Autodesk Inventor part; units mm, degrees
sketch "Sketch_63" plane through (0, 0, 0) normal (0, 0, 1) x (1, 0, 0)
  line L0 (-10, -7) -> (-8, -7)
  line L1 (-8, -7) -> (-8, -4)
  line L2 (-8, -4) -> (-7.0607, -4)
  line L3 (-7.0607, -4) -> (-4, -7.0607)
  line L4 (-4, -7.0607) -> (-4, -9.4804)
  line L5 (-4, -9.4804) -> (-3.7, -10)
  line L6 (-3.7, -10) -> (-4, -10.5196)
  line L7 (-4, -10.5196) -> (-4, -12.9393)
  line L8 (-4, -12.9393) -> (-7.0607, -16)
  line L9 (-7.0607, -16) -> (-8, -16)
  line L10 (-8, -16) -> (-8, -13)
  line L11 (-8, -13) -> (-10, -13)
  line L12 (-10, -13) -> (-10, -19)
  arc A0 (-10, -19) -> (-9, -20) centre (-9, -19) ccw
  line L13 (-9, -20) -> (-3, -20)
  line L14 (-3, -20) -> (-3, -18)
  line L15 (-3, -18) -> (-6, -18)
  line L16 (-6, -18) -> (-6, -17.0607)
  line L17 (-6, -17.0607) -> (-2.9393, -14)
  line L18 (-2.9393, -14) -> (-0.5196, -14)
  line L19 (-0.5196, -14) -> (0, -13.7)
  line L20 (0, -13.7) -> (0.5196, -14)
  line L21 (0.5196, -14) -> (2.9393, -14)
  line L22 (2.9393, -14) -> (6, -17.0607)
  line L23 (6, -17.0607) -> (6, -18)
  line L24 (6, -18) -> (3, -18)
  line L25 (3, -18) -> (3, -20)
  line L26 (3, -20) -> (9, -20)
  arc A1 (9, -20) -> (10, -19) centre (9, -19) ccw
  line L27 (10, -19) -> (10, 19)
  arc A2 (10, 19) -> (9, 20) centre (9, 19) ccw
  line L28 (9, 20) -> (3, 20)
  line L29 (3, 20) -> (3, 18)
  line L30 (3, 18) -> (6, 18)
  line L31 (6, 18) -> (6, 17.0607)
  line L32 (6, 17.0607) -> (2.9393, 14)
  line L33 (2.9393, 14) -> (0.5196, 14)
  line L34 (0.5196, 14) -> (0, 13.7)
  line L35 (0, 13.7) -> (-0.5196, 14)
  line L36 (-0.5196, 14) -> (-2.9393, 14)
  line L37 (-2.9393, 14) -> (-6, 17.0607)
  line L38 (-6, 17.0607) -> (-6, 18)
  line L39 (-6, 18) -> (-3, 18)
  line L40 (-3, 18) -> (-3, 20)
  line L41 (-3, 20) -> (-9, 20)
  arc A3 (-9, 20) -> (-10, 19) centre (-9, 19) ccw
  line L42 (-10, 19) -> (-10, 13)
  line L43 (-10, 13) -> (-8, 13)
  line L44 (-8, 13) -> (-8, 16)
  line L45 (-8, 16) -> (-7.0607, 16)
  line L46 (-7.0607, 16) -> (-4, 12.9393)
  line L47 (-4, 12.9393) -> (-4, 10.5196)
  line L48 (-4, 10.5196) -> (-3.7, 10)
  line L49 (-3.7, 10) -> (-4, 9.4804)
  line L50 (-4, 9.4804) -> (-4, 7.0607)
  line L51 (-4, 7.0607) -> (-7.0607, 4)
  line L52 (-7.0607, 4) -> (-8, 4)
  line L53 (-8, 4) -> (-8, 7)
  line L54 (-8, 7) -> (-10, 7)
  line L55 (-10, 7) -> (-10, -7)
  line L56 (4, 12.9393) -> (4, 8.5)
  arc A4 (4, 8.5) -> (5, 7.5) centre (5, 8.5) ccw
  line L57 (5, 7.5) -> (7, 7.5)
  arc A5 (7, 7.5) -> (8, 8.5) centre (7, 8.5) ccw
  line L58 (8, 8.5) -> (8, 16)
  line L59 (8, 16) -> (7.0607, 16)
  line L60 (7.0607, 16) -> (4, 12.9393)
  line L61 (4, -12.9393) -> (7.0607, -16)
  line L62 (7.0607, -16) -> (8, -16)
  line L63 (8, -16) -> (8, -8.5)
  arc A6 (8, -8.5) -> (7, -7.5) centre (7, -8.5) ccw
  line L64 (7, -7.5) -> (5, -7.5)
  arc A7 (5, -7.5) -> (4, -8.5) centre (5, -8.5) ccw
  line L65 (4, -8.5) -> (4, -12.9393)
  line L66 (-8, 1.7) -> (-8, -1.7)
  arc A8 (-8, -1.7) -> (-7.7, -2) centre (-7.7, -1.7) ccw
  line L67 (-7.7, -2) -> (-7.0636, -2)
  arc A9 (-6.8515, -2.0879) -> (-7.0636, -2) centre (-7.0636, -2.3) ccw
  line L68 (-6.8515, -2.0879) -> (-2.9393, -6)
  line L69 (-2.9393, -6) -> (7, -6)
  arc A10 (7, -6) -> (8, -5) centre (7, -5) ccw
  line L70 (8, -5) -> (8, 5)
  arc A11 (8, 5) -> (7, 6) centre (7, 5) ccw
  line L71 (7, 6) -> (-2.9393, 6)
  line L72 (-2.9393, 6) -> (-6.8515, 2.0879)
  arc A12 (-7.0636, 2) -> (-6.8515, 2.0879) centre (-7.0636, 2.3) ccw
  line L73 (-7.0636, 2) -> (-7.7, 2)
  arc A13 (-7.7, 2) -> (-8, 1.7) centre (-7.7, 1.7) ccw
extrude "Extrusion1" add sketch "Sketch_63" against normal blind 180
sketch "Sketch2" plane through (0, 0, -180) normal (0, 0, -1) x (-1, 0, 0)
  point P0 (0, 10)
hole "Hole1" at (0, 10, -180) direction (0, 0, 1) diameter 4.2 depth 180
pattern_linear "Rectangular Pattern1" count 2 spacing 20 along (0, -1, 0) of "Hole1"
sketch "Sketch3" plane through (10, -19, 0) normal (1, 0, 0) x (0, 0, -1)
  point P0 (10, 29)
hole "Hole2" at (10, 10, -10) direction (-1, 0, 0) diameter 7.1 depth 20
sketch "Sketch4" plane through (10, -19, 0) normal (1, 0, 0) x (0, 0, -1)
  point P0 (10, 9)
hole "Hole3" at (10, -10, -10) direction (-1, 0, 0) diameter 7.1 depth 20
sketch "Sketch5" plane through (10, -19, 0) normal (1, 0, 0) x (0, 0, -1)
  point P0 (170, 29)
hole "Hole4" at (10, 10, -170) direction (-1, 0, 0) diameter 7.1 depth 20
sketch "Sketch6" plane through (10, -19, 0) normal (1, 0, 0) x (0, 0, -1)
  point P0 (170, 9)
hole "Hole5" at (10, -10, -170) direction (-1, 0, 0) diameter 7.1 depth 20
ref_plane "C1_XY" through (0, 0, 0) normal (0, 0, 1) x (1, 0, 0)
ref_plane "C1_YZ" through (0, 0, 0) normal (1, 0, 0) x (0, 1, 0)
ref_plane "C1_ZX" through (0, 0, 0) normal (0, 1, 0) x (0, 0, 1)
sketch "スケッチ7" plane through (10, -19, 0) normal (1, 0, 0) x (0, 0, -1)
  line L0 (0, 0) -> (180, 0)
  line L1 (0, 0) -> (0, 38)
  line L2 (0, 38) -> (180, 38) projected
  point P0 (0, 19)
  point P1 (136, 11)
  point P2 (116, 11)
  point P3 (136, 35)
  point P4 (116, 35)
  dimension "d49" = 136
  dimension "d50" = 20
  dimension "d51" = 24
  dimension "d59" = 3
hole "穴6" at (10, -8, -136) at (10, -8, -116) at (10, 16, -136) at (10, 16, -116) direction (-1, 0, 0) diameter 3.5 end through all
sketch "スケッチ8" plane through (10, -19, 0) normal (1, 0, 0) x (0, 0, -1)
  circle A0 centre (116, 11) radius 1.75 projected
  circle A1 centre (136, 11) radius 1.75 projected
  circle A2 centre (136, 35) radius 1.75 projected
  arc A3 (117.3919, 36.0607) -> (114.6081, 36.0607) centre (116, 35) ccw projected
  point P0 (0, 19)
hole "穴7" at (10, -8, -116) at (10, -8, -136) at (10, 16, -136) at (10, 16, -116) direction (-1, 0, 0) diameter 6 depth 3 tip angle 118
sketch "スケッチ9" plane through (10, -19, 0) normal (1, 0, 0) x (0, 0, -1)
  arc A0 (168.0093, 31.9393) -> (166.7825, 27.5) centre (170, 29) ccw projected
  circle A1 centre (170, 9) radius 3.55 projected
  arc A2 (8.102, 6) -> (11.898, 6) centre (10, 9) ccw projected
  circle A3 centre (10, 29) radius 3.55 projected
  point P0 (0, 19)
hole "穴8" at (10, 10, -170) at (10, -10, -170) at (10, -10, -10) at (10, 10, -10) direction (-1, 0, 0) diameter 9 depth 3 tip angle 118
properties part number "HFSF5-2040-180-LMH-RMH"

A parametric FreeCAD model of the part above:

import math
import FreeCAD as App
import Part
import Sketcher

V = App.Vector
Q = App.Units.Quantity

doc = App.newDocument("Part")
body = doc.addObject("PartDesign::Body", "Body")

# Sketch on XY plane
sketch1 = body.newObject("Sketcher::SketchObject", "Sketch")
sketch1.AttachmentSupport = (doc.getObject("XY_Plane"), [""])
sketch1.MapMode = "FlatFace"
sketch1.addGeometry([
    Part.LineSegment(V(-10, 7, 0), V(-10, -7, 0)),  # 0
    Part.LineSegment(V(-10, -7, 0), V(-8, -7, 0)),  # 1
    Part.LineSegment(V(-8, -7, 0), V(-8, -4, 0)),  # 2
    Part.LineSegment(V(-8, -4, 0), V(-7.06, -4, 0)),  # 3
    Part.LineSegment(V(-7.06, -4, 0), V(-4, -7.06, 0)),  # 4
    Part.LineSegment(V(-4, -7.06, 0), V(-4, -9.48, 0)),  # 5
    Part.LineSegment(V(-4, -9.48, 0), V(-3.7, -10, 0)),  # 6
    Part.LineSegment(V(-3.7, -10, 0), V(-4, -10.52, 0)),  # 7
    Part.LineSegment(V(-4, -10.52, 0), V(-4, -12.94, 0)),  # 8
    Part.LineSegment(V(-4, -12.94, 0), V(-7.06, -16, 0)),  # 9
    Part.LineSegment(V(-7.06, -16, 0), V(-8, -16, 0)),  # 10
    Part.LineSegment(V(-8, -16, 0), V(-8, -13, 0)),  # 11
    Part.LineSegment(V(-8, -13, 0), V(-10, -13, 0)),  # 12
    Part.LineSegment(V(-10, -13, 0), V(-10, -19, 0)),  # 13
    Part.ArcOfCircle(Part.Circle(V(-9, -19, 0), V(0, 0, 1), 1), math.radians(180), math.radians(270)),  # 14
    Part.LineSegment(V(-9, -20, 0), V(-3, -20, 0)),  # 15
    Part.LineSegment(V(-3, -20, 0), V(-3, -18, 0)),  # 16
    Part.LineSegment(V(-3, -18, 0), V(-6, -18, 0)),  # 17
    Part.LineSegment(V(-6, -18, 0), V(-6, -17.06, 0)),  # 18
    Part.LineSegment(V(-6, -17.06, 0), V(-2.94, -14, 0)),  # 19
    Part.LineSegment(V(-2.94, -14, 0), V(-0.52, -14, 0)),  # 20
    Part.LineSegment(V(-0.52, -14, 0), V(0, -13.7, 0)),  # 21
    Part.LineSegment(V(0, -13.7, 0), V(0.52, -14, 0)),  # 22
    Part.LineSegment(V(0.52, -14, 0), V(2.94, -14, 0)),  # 23
    Part.LineSegment(V(2.94, -14, 0), V(6, -17.06, 0)),  # 24
    Part.LineSegment(V(6, -17.06, 0), V(6, -18, 0)),  # 25
    Part.LineSegment(V(6, -18, 0), V(3, -18, 0)),  # 26
    Part.LineSegment(V(3, -18, 0), V(3, -20, 0)),  # 27
    Part.LineSegment(V(3, -20, 0), V(9, -20, 0)),  # 28
    Part.ArcOfCircle(Part.Circle(V(9, -19, 0), V(0, 0, 1), 1), math.radians(-90), math.radians(0)),  # 29
    Part.LineSegment(V(10, -19, 0), V(10, 19, 0)),  # 30
    Part.ArcOfCircle(Part.Circle(V(9, 19, 0), V(0, 0, 1), 1), math.radians(0), math.radians(90)),  # 31
    Part.LineSegment(V(9, 20, 0), V(3, 20, 0)),  # 32
    Part.LineSegment(V(3, 20, 0), V(3, 18, 0)),  # 33
    Part.LineSegment(V(3, 18, 0), V(6, 18, 0)),  # 34
    Part.LineSegment(V(6, 18, 0), V(6, 17.06, 0)),  # 35
    Part.LineSegment(V(6, 17.06, 0), V(2.94, 14, 0)),  # 36
    Part.LineSegment(V(2.94, 14, 0), V(0.52, 14, 0)),  # 37
    Part.LineSegment(V(0.52, 14, 0), V(0, 13.7, 0)),  # 38
    Part.LineSegment(V(0, 13.7, 0), V(-0.52, 14, 0)),  # 39
    Part.LineSegment(V(-0.52, 14, 0), V(-2.94, 14, 0)),  # 40
    Part.LineSegment(V(-2.94, 14, 0), V(-6, 17.06, 0)),  # 41
    Part.LineSegment(V(-6, 17.06, 0), V(-6, 18, 0)),  # 42
    Part.LineSegment(V(-6, 18, 0), V(-3, 18, 0)),  # 43
    Part.LineSegment(V(-3, 18, 0), V(-3, 20, 0)),  # 44
    Part.LineSegment(V(-3, 20, 0), V(-9, 20, 0)),  # 45
    Part.ArcOfCircle(Part.Circle(V(-9, 19, 0), V(0, 0, 1), 1), math.radians(90), math.radians(180)),  # 46
    Part.LineSegment(V(-10, 19, 0), V(-10, 13, 0)),  # 47
    Part.LineSegment(V(-10, 13, 0), V(-8, 13, 0)),  # 48
    Part.LineSegment(V(-8, 13, 0), V(-8, 16, 0)),  # 49
    Part.LineSegment(V(-8, 16, 0), V(-7.06, 16, 0)),  # 50
    Part.LineSegment(V(-7.06, 16, 0), V(-4, 12.94, 0)),  # 51
    Part.LineSegment(V(-4, 12.94, 0), V(-4, 10.52, 0)),  # 52
    Part.LineSegment(V(-4, 10.52, 0), V(-3.7, 10, 0)),  # 53
    Part.LineSegment(V(-3.7, 10, 0), V(-4, 9.48, 0)),  # 54
    Part.LineSegment(V(-4, 9.48, 0), V(-4, 7.06, 0)),  # 55
    Part.LineSegment(V(-4, 7.06, 0), V(-7.06, 4, 0)),  # 56
    Part.LineSegment(V(-7.06, 4, 0), V(-8, 4, 0)),  # 57
    Part.LineSegment(V(-8, 4, 0), V(-8, 7, 0)),  # 58
    Part.LineSegment(V(-8, 7, 0), V(-10, 7, 0)),  # 59
    Part.LineSegment(V(7.06, -16, 0), V(4, -12.94, 0)),  # 60
    Part.LineSegment(V(4, -12.94, 0), V(4, -8.5, 0)),  # 61
    Part.ArcOfCircle(Part.Circle(V(5, -8.5, 0), V(0, 0, 1), 1), math.radians(90), math.radians(180)),  # 62
    Part.LineSegment(V(5, -7.5, 0), V(7, -7.5, 0)),  # 63
    Part.ArcOfCircle(Part.Circle(V(7, -8.5, 0), V(0, 0, 1), 1), math.radians(0), math.radians(90)),  # 64
    Part.LineSegment(V(8, -8.5, 0), V(8, -16, 0)),  # 65
    Part.LineSegment(V(8, -16, 0), V(7.06, -16, 0)),  # 66
    Part.LineSegment(V(-8, -1.7, 0), V(-8, 1.7, 0)),  # 67
    Part.ArcOfCircle(Part.Circle(V(-7.7, 1.7, 0), V(0, 0, 1), 0.3), math.radians(90), math.radians(180)),  # 68
    Part.LineSegment(V(-7.7, 2, 0), V(-7.06, 2, 0)),  # 69
    Part.ArcOfCircle(Part.Circle(V(-7.06, 2.3, 0), V(0, 0, 1), 0.3), math.radians(-90), math.radians(-45)),  # 70
    Part.LineSegment(V(-6.85, 2.09, 0), V(-2.94, 6, 0)),  # 71
    Part.LineSegment(V(-2.94, 6, 0), V(7, 6, 0)),  # 72
    Part.ArcOfCircle(Part.Circle(V(7, 5, 0), V(0, 0, 1), 1), math.radians(0), math.radians(90)),  # 73
    Part.LineSegment(V(8, 5, 0), V(8, -5, 0)),  # 74
    Part.ArcOfCircle(Part.Circle(V(7, -5, 0), V(0, 0, 1), 1), math.radians(-90), math.radians(0)),  # 75
    Part.LineSegment(V(7, -6, 0), V(-2.94, -6, 0)),  # 76
    Part.LineSegment(V(-2.94, -6, 0), V(-6.85, -2.09, 0)),  # 77
    Part.ArcOfCircle(Part.Circle(V(-7.06, -2.3, 0), V(0, 0, 1), 0.3), math.radians(45), math.radians(90)),  # 78
    Part.LineSegment(V(-7.06, -2, 0), V(-7.7, -2, 0)),  # 79
    Part.ArcOfCircle(Part.Circle(V(-7.7, -1.7, 0), V(0, 0, 1), 0.3), math.radians(180), math.radians(270)),  # 80
    Part.LineSegment(V(4, 8.5, 0), V(4, 12.94, 0)),  # 81
    Part.LineSegment(V(4, 12.94, 0), V(7.06, 16, 0)),  # 82
    Part.LineSegment(V(7.06, 16, 0), V(8, 16, 0)),  # 83
    Part.LineSegment(V(8, 16, 0), V(8, 8.5, 0)),  # 84
    Part.ArcOfCircle(Part.Circle(V(7, 8.5, 0), V(0, 0, 1), 1), math.radians(-90), math.radians(0)),  # 85
    Part.LineSegment(V(7, 7.5, 0), V(5, 7.5, 0)),  # 86
    Part.ArcOfCircle(Part.Circle(V(5, 8.5, 0), V(0, 0, 1), 1), math.radians(180), math.radians(270)),  # 87
], False)
sketch1.addConstraint([
    Sketcher.Constraint("Coincident", 0, 2, 1, 1),
    Sketcher.Constraint("Coincident", 1, 2, 2, 1),
    Sketcher.Constraint("Coincident", 2, 2, 3, 1),
    Sketcher.Constraint("Coincident", 3, 2, 4, 1),
    Sketcher.Constraint("Coincident", 4, 2, 5, 1),
    Sketcher.Constraint("Coincident", 5, 2, 6, 1),
    Sketcher.Constraint("Coincident", 6, 2, 7, 1),
    Sketcher.Constraint("Coincident", 7, 2, 8, 1),
    Sketcher.Constraint("Coincident", 8, 2, 9, 1),
    Sketcher.Constraint("Coincident", 9, 2, 10, 1),
    Sketcher.Constraint("Coincident", 10, 2, 11, 1),
    Sketcher.Constraint("Coincident", 11, 2, 12, 1),
    Sketcher.Constraint("Coincident", 12, 2, 13, 1),
    Sketcher.Constraint("Tangent", 13, 2, 14, 1),
    Sketcher.Constraint("Tangent", 14, 2, 15, 1),
    Sketcher.Constraint("Coincident", 15, 2, 16, 1),
    Sketcher.Constraint("Coincident", 16, 2, 17, 1),
    Sketcher.Constraint("Coincident", 17, 2, 18, 1),
    Sketcher.Constraint("Coincident", 18, 2, 19, 1),
    Sketcher.Constraint("Coincident", 19, 2, 20, 1),
    Sketcher.Constraint("Coincident", 20, 2, 21, 1),
    Sketcher.Constraint("Coincident", 21, 2, 22, 1),
    Sketcher.Constraint("Coincident", 22, 2, 23, 1),
    Sketcher.Constraint("Coincident", 23, 2, 24, 1),
    Sketcher.Constraint("Coincident", 24, 2, 25, 1),
    Sketcher.Constraint("Coincident", 25, 2, 26, 1),
    Sketcher.Constraint("Coincident", 26, 2, 27, 1),
    Sketcher.Constraint("Coincident", 27, 2, 28, 1),
    Sketcher.Constraint("Tangent", 28, 2, 29, 1),
    Sketcher.Constraint("Tangent", 29, 2, 30, 1),
    Sketcher.Constraint("Tangent", 30, 2, 31, 1),
    Sketcher.Constraint("Tangent", 31, 2, 32, 1),
    Sketcher.Constraint("Coincident", 32, 2, 33, 1),
    Sketcher.Constraint("Coincident", 33, 2, 34, 1),
    Sketcher.Constraint("Coincident", 34, 2, 35, 1),
    Sketcher.Constraint("Coincident", 35, 2, 36, 1),
    Sketcher.Constraint("Coincident", 36, 2, 37, 1),
    Sketcher.Constraint("Coincident", 37, 2, 38, 1),
    Sketcher.Constraint("Coincident", 38, 2, 39, 1),
    Sketcher.Constraint("Coincident", 39, 2, 40, 1),
    Sketcher.Constraint("Coincident", 40, 2, 41, 1),
    Sketcher.Constraint("Coincident", 41, 2, 42, 1),
    Sketcher.Constraint("Coincident", 42, 2, 43, 1),
    Sketcher.Constraint("Coincident", 43, 2, 44, 1),
    Sketcher.Constraint("Coincident", 44, 2, 45, 1),
    Sketcher.Constraint("Tangent", 45, 2, 46, 1),
    Sketcher.Constraint("Tangent", 46, 2, 47, 1),
    Sketcher.Constraint("Coincident", 47, 2, 48, 1),
    Sketcher.Constraint("Coincident", 48, 2, 49, 1),
    Sketcher.Constraint("Coincident", 49, 2, 50, 1),
    Sketcher.Constraint("Coincident", 50, 2, 51, 1),
    Sketcher.Constraint("Coincident", 51, 2, 52, 1),
    Sketcher.Constraint("Coincident", 52, 2, 53, 1),
    Sketcher.Constraint("Coincident", 53, 2, 54, 1),
    Sketcher.Constraint("Coincident", 54, 2, 55, 1),
    Sketcher.Constraint("Coincident", 55, 2, 56, 1),
    Sketcher.Constraint("Coincident", 56, 2, 57, 1),
    Sketcher.Constraint("Coincident", 57, 2, 58, 1),
    Sketcher.Constraint("Coincident", 58, 2, 59, 1),
    Sketcher.Constraint("Coincident", 59, 2, 0, 1),
    Sketcher.Constraint("Coincident", 60, 2, 61, 1),
    Sketcher.Constraint("Tangent", 61, 2, 62, 2),
    Sketcher.Constraint("Tangent", 62, 1, 63, 1),
    Sketcher.Constraint("Tangent", 63, 2, 64, 2),
    Sketcher.Constraint("Tangent", 64, 1, 65, 1),
    Sketcher.Constraint("Coincident", 65, 2, 66, 1),
    Sketcher.Constraint("Coincident", 66, 2, 60, 1),
    Sketcher.Constraint("Tangent", 67, 2, 68, 2),
    Sketcher.Constraint("Tangent", 68, 1, 69, 1),
    Sketcher.Constraint("Tangent", 69, 2, 70, 1),
    Sketcher.Constraint("Tangent", 70, 2, 71, 1),
    Sketcher.Constraint("Coincident", 71, 2, 72, 1),
    Sketcher.Constraint("Tangent", 72, 2, 73, 2),
    Sketcher.Constraint("Tangent", 73, 1, 74, 1),
    Sketcher.Constraint("Tangent", 74, 2, 75, 2),
    Sketcher.Constraint("Tangent", 75, 1, 76, 1),
    Sketcher.Constraint("Coincident", 76, 2, 77, 1),
    Sketcher.Constraint("Tangent", 77, 2, 78, 1),
    Sketcher.Constraint("Tangent", 78, 2, 79, 1),
    Sketcher.Constraint("Tangent", 79, 2, 80, 2),
    Sketcher.Constraint("Tangent", 80, 1, 67, 1),
    Sketcher.Constraint("Coincident", 81, 2, 82, 1),
    Sketcher.Constraint("Coincident", 82, 2, 83, 1),
    Sketcher.Constraint("Coincident", 83, 2, 84, 1),
    Sketcher.Constraint("Tangent", 84, 2, 85, 2),
    Sketcher.Constraint("Tangent", 85, 1, 86, 1),
    Sketcher.Constraint("Tangent", 86, 2, 87, 2),
    Sketcher.Constraint("Tangent", 87, 1, 81, 1),
    Sketcher.Constraint("Vertical", 0),
    Sketcher.Constraint("Horizontal", 1),
    Sketcher.Constraint("Vertical", 2),
    Sketcher.Constraint("Horizontal", 3),
    Sketcher.Constraint("Vertical", 5),
    Sketcher.Constraint("Vertical", 8),
    Sketcher.Constraint("Horizontal", 10),
    Sketcher.Constraint("Vertical", 11),
    Sketcher.Constraint("Horizontal", 12),
    Sketcher.Constraint("Vertical", 13),
    Sketcher.Constraint("Horizontal", 15),
    Sketcher.Constraint("Vertical", 16),
    Sketcher.Constraint("Horizontal", 17),
    Sketcher.Constraint("Vertical", 18),
    Sketcher.Constraint("Horizontal", 20),
    Sketcher.Constraint("Horizontal", 23),
    Sketcher.Constraint("Vertical", 25),
    Sketcher.Constraint("Horizontal", 26),
    Sketcher.Constraint("Vertical", 27),
    Sketcher.Constraint("Horizontal", 28),
    Sketcher.Constraint("Vertical", 30),
    Sketcher.Constraint("Horizontal", 32),
    Sketcher.Constraint("Vertical", 33),
    Sketcher.Constraint("Horizontal", 34),
    Sketcher.Constraint("Vertical", 35),
    Sketcher.Constraint("Horizontal", 37),
    Sketcher.Constraint("Horizontal", 40),
    Sketcher.Constraint("Vertical", 42),
    Sketcher.Constraint("Horizontal", 43),
    Sketcher.Constraint("Vertical", 44),
    Sketcher.Constraint("Horizontal", 45),
    Sketcher.Constraint("Vertical", 47),
    Sketcher.Constraint("Horizontal", 48),
    Sketcher.Constraint("Vertical", 49),
    Sketcher.Constraint("Horizontal", 50),
    Sketcher.Constraint("Vertical", 52),
    Sketcher.Constraint("Vertical", 55),
    Sketcher.Constraint("Horizontal", 57),
    Sketcher.Constraint("Vertical", 58),
    Sketcher.Constraint("Horizontal", 59),
    Sketcher.Constraint("Vertical", 61),
    Sketcher.Constraint("Horizontal", 63),
    Sketcher.Constraint("Vertical", 65),
    Sketcher.Constraint("Horizontal", 66),
    Sketcher.Constraint("Vertical", 67),
    Sketcher.Constraint("Horizontal", 69),
    Sketcher.Constraint("Horizontal", 72),
    Sketcher.Constraint("Vertical", 74),
    Sketcher.Constraint("Horizontal", 76),
    Sketcher.Constraint("Horizontal", 79),
    Sketcher.Constraint("Vertical", 81),
    Sketcher.Constraint("Horizontal", 83),
    Sketcher.Constraint("Vertical", 84),
    Sketcher.Constraint("Horizontal", 86),
    Sketcher.Constraint("Equal", 14, 29),
    Sketcher.Constraint("Equal", 29, 31),
    Sketcher.Constraint("Equal", 31, 46),
    Sketcher.Constraint("Equal", 46, 62),
    Sketcher.Constraint("Equal", 62, 64),
    Sketcher.Constraint("Equal", 68, 70),
    Sketcher.Constraint("Equal", 64, 73),
    Sketcher.Constraint("Equal", 73, 75),
    Sketcher.Constraint("Equal", 70, 78),
    Sketcher.Constraint("Equal", 78, 80),
    Sketcher.Constraint("Equal", 75, 85),
    Sketcher.Constraint("Equal", 85, 87),
    Sketcher.Constraint("Symmetric", 14, 3, 31, 3, -1, 1),
    Sketcher.Constraint("Symmetric", 29, 3, 46, 3, -1, 1),
    Sketcher.Constraint("Symmetric", 16, 2, 33, 2, -1, 1),
    Sketcher.Constraint("Symmetric", 18, 2, 35, 2, -1, 1),
    Sketcher.Constraint("Symmetric", 19, 2, 36, 2, -1, 1),
    Sketcher.Constraint("Symmetric", 21, 2, 38, 2, -1, 1),
    Sketcher.Constraint("Symmetric", 22, 2, 39, 2, -1, 1),
    Sketcher.Constraint("Symmetric", 24, 2, 41, 2, -1, 1),
    Sketcher.Constraint("Symmetric", 26, 2, 43, 2, -1, 1),
    Sketcher.Constraint("Symmetric", 51, 2, 60, 2, -1, 1),
    Sketcher.Constraint("Symmetric", 49, 2, 65, 2, -1, 1),
    Sketcher.Constraint("Symmetric", 8, 2, 81, 2, -1, 1),
    Sketcher.Constraint("Symmetric", 9, 2, 82, 2, -1, 1),
    Sketcher.Constraint("Symmetric", 20, 2, 22, 2, -2),
    Sketcher.Constraint("Symmetric", 18, 2, 24, 2, -2),
    Sketcher.Constraint("Symmetric", 16, 2, 26, 2, -2),
    Sketcher.Constraint("Symmetric", 8, 2, 60, 2, -2),
    Sketcher.Constraint("Symmetric", 10, 2, 65, 2, -2),
    Sketcher.Constraint("Symmetric", 70, 3, 78, 3, -1),
    Sketcher.Constraint("Symmetric", 64, 3, 85, 3, -1),
    Sketcher.Constraint("Symmetric", 6, 2, 53, 2, -1),
    Sketcher.Constraint("Symmetric", 5, 2, 54, 2, -1),
    Sketcher.Constraint("Symmetric", 3, 2, 56, 2, -1),
    Sketcher.Constraint("Symmetric", 1, 2, 58, 2, -1),
    Sketcher.Constraint("Symmetric", 71, 2, 76, 2, -1),
    Sketcher.Constraint("PointOnObject", 21, 2, -2),
    Sketcher.Constraint("Perpendicular", 4, 9),
    Sketcher.Constraint("Parallel", 9, 19),
    Sketcher.Constraint("Perpendicular", 6, 21),
    Sketcher.Constraint("Perpendicular", 7, 22),
    Sketcher.Constraint("Perpendicular", 19, 24),
    Sketcher.Constraint("Parallel", 21, 38),
    Sketcher.Constraint("Perpendicular", 36, 41),
    Sketcher.Constraint("Parallel", 41, 51),
    Sketcher.Constraint("Perpendicular", 38, 53),
    Sketcher.Constraint("Perpendicular", 51, 56),
    Sketcher.Constraint("Perpendicular", 56, 60),
    Sketcher.Constraint("Perpendicular", 60, 71),
    Sketcher.Constraint("Perpendicular", 71, 77),
    Sketcher.Constraint("Horizontal", 14, 3, 29, 3),
    Sketcher.Constraint("Vertical", 64, 3, 73, 3),
    Sketcher.Constraint("Vertical", 5, 2, 7, 2),
    Sketcher.Constraint("Vertical", 3, 2, 9, 2),
    Sketcher.Constraint("Vertical", 2, 2, 10, 2),
    Sketcher.Constraint("Vertical", 0, 2, 12, 2),
    Sketcher.Constraint("Vertical", 58, 2, 67, 2),
    Sketcher.Constraint("Vertical", 40, 2, 71, 2),
    Sketcher.Constraint("Equal", 59, 63),
    Sketcher.Constraint("Equal", 43, 2),
    Sketcher.Constraint("Equal", 40, 5),
    Sketcher.Constraint("Equal", 5, 8),
    Sketcher.Constraint("Equal", 2, 11),
    Sketcher.Constraint("Equal", 45, 13),
    Sketcher.Constraint("Equal", 86, 16),
    Sketcher.Constraint("Equal", 83, 18),
    Sketcher.Constraint("Equal", 13, 47),
    Sketcher.Constraint("Equal", 9, 19),
    Sketcher.Constraint("Equal", 7, 21),
    Sketcher.Constraint("Radius", 14, 1.0),
    Sketcher.Constraint("Radius", 68, 0.3),
    Sketcher.Constraint("DistanceX", 1, 1, 1, 2, 2.0),
    Sketcher.Constraint("DistanceX", 15, 1, 15, 2, 6.0),
    Sketcher.Constraint("DistanceX", 17, 2, 17, 1, 3.0),
    Sketcher.Constraint("DistanceY", 0, 2, 0, 1, 14.0),
    Sketcher.Constraint("DistanceY", 30, 1, 30, 2, 38.0),
    Sketcher.Constraint("DistanceY", 74, 2, 74, 1, 10.0),
    Sketcher.Constraint("Angle", 6, Q("-59.9993 deg")),
    Sketcher.Constraint("DistanceY", 65, 2, 65, 1, 7.5),
    Sketcher.Constraint("DistanceY", 67, 1, 67, 2, 3.4),
    Sketcher.Constraint("Distance", 6, 0.6),
    Sketcher.Constraint("DistanceX", 3, 1, 3, 2, 0.9393),
])
pad1 = body.newObject("PartDesign::Pad", "Pad")
pad1.Profile = sketch1
pad1.Length = 180
pad1.Reversed = True

# Sketch on XY plane
sketch2 = body.newObject("Sketcher::SketchObject", "Sketch001")
sketch2.AttachmentSupport = (doc.getObject("XY_Plane"), [""])
sketch2.MapMode = "FlatFace"
sketch2.AttachmentOffset = App.Placement(V(0, 0, -180), App.Rotation())
sketch2.addGeometry(Part.Circle(V(0, 10, 0), V(0, 0, 1), 2.1), False)
sketch2.addConstraint([
    Sketcher.Constraint("PointOnObject", 0, 3, -2),
    Sketcher.Constraint("Diameter", 0, 4.2),
    Sketcher.Constraint("DistanceY", -1, 1, 0, 3, 10.0),
])
doc.recompute()
hole = body.newObject("PartDesign::Hole", "Hole")
hole.Profile = sketch2
hole.ThreadType = "None"
hole.Diameter = 4.2
hole.DepthType = "Dimension"
hole.Depth = 180
hole.DrillPoint = "Flat"
hole.Reversed = True
doc.recompute()

linearpattern = body.newObject("PartDesign::LinearPattern", "LinearPattern")
linearpattern.Originals = [hole]
linearpattern.Direction = (doc.getObject("Y_Axis"), [""])
linearpattern.Mode = "offset"
linearpattern.Offset = 20
linearpattern.Occurrences = 2
linearpattern.Reversed = True
body.Tip = linearpattern

# Sketch on YZ plane
sketch3 = body.newObject("Sketcher::SketchObject", "Sketch002")
sketch3.AttachmentSupport = (doc.getObject("YZ_Plane"), [""])
sketch3.MapMode = "FlatFace"
sketch3.AttachmentOffset = App.Placement(V(0, 0, 10), App.Rotation())
sketch3.addGeometry(Part.Circle(V(10, -10, 0), V(0, 0, 1), 3.5), False)
sketch3.addConstraint([
    Sketcher.Constraint("Diameter", 0, 7.1),
    Sketcher.Constraint("DistanceX", -1, 1, 0, 3, 10.0),
    Sketcher.Constraint("DistanceY", 0, 3, -1, 1, 10.0),
])
doc.recompute()
hole2 = body.newObject("PartDesign::Hole", "Hole001")
hole2.Profile = sketch3
hole2.ThreadType = "None"
hole2.Diameter = 7.1
hole2.DepthType = "Dimension"
hole2.Depth = 20
hole2.DrillPoint = "Flat"

# Sketch on YZ plane
sketch4 = body.newObject("Sketcher::SketchObject", "Sketch003")
sketch4.AttachmentSupport = (doc.getObject("YZ_Plane"), [""])
sketch4.MapMode = "FlatFace"
sketch4.AttachmentOffset = App.Placement(V(0, 0, 10), App.Rotation())
sketch4.addGeometry(Part.Circle(V(-10, -10, 0), V(0, 0, 1), 3.5), False)
sketch4.addConstraint([
    Sketcher.Constraint("Diameter", 0, 7.1),
    Sketcher.Constraint("DistanceX", 0, 3, -1, 1, 10.0),
    Sketcher.Constraint("DistanceY", 0, 3, -1, 1, 10.0),
])
doc.recompute()
hole3 = body.newObject("PartDesign::Hole", "Hole002")
hole3.Profile = sketch4
hole3.ThreadType = "None"
hole3.Diameter = 7.1
hole3.DepthType = "Dimension"
hole3.Depth = 20
hole3.DrillPoint = "Flat"

# Sketch on YZ plane
sketch5 = body.newObject("Sketcher::SketchObject", "Sketch004")
sketch5.AttachmentSupport = (doc.getObject("YZ_Plane"), [""])
sketch5.MapMode = "FlatFace"
sketch5.AttachmentOffset = App.Placement(V(0, 0, 10), App.Rotation())
sketch5.addGeometry(Part.Circle(V(10, -170, 0), V(0, 0, 1), 3.5), False)
sketch5.addConstraint([
    Sketcher.Constraint("Diameter", 0, 7.1),
    Sketcher.Constraint("DistanceX", -1, 1, 0, 3, 10.0),
    Sketcher.Constraint("DistanceY", 0, 3, -1, 1, 170.0),
])
doc.recompute()
hole4 = body.newObject("PartDesign::Hole", "Hole003")
hole4.Profile = sketch5
hole4.ThreadType = "None"
hole4.Diameter = 7.1
hole4.DepthType = "Dimension"
hole4.Depth = 20
hole4.DrillPoint = "Flat"

# Sketch on YZ plane
sketch6 = body.newObject("Sketcher::SketchObject", "Sketch005")
sketch6.AttachmentSupport = (doc.getObject("YZ_Plane"), [""])
sketch6.MapMode = "FlatFace"
sketch6.AttachmentOffset = App.Placement(V(0, 0, 10), App.Rotation())
sketch6.addGeometry(Part.Circle(V(-10, -170, 0), V(0, 0, 1), 3.5), False)
sketch6.addConstraint([
    Sketcher.Constraint("Diameter", 0, 7.1),
    Sketcher.Constraint("DistanceX", 0, 3, -1, 1, 10.0),
    Sketcher.Constraint("DistanceY", 0, 3, -1, 1, 170.0),
])
doc.recompute()
hole5 = body.newObject("PartDesign::Hole", "Hole004")
hole5.Profile = sketch6
hole5.ThreadType = "None"
hole5.Diameter = 7.1
hole5.DepthType = "Dimension"
hole5.Depth = 20
hole5.DrillPoint = "Flat"

# Sketch on YZ plane
sketch7 = body.newObject("Sketcher::SketchObject", "Sketch006")
sketch7.AttachmentSupport = (doc.getObject("YZ_Plane"), [""])
sketch7.MapMode = "FlatFace"
sketch7.AttachmentOffset = App.Placement(V(0, 0, 10), App.Rotation())
sketch7.addGeometry([
    Part.Circle(V(-8, -136, 0), V(0, 0, 1), 1.8),
    Part.Circle(V(-8, -116, 0), V(0, 0, 1), 1.8),
    Part.Circle(V(16, -136, 0), V(0, 0, 1), 1.8),
    Part.Circle(V(16, -116, 0), V(0, 0, 1), 1.8),
], False)
sketch7.addConstraint([
    Sketcher.Constraint("Equal", 0, 1),
    Sketcher.Constraint("Equal", 1, 2),
    Sketcher.Constraint("Equal", 2, 3),
    Sketcher.Constraint("Horizontal", 0, 3, 2, 3),
    Sketcher.Constraint("Horizontal", 1, 3, 3, 3),
    Sketcher.Constraint("Vertical", 0, 3, 1, 3),
    Sketcher.Constraint("Vertical", 2, 3, 3, 3),
    Sketcher.Constraint("Diameter", 0, 3.5),
    Sketcher.Constraint("DistanceX", 0, 3, -1, 1, 8.0),
    Sketcher.Constraint("DistanceY", 0, 3, -1, 1, 136.0),
    Sketcher.Constraint("DistanceY", 1, 3, -1, 1, 116.0),
    Sketcher.Constraint("DistanceX", -1, 1, 2, 3, 16.0),
])
doc.recompute()
hole6 = body.newObject("PartDesign::Hole", "Hole005")
hole6.Profile = sketch7
hole6.ThreadType = "None"
hole6.Diameter = 3.5
hole6.DepthType = "ThroughAll"

# Sketch on YZ plane
sketch8 = body.newObject("Sketcher::SketchObject", "Sketch007")
sketch8.AttachmentSupport = (doc.getObject("YZ_Plane"), [""])
sketch8.MapMode = "FlatFace"
sketch8.AttachmentOffset = App.Placement(V(0, 0, 10), App.Rotation())
sketch8.addGeometry([
    Part.Circle(V(-8, -116, 0), V(0, 0, 1), 3),
    Part.Circle(V(-8, -136, 0), V(0, 0, 1), 3),
    Part.Circle(V(16, -136, 0), V(0, 0, 1), 3),
    Part.Circle(V(16, -116, 0), V(0, 0, 1), 3),
], False)
sketch8.addConstraint([
    Sketcher.Constraint("Equal", 0, 1),
    Sketcher.Constraint("Equal", 1, 2),
    Sketcher.Constraint("Equal", 2, 3),
    Sketcher.Constraint("Horizontal", 1, 3, 2, 3),
    Sketcher.Constraint("Horizontal", 0, 3, 3, 3),
    Sketcher.Constraint("Vertical", 0, 3, 1, 3),
    Sketcher.Constraint("Vertical", 2, 3, 3, 3),
    Sketcher.Constraint("Diameter", 0, 6.0),
    Sketcher.Constraint("DistanceX", 0, 3, -1, 1, 8.0),
    Sketcher.Constraint("DistanceY", 0, 3, -1, 1, 116.0),
    Sketcher.Constraint("DistanceY", 1, 3, -1, 1, 136.0),
    Sketcher.Constraint("DistanceX", -1, 1, 2, 3, 16.0),
])
doc.recompute()
hole7 = body.newObject("PartDesign::Hole", "Hole006")
hole7.Profile = sketch8
hole7.ThreadType = "None"
hole7.Diameter = 6
hole7.DepthType = "Dimension"
hole7.Depth = 3
hole7.DrillPoint = "Angled"
hole7.DrillPointAngle = 118

# Sketch on YZ plane
sketch9 = body.newObject("Sketcher::SketchObject", "Sketch008")
sketch9.AttachmentSupport = (doc.getObject("YZ_Plane"), [""])
sketch9.MapMode = "FlatFace"
sketch9.AttachmentOffset = App.Placement(V(0, 0, 10), App.Rotation())
sketch9.addGeometry([
    Part.Circle(V(10, -170, 0), V(0, 0, 1), 4.5),
    Part.Circle(V(-10, -170, 0), V(0, 0, 1), 4.5),
    Part.Circle(V(-10, -10, 0), V(0, 0, 1), 4.5),
    Part.Circle(V(10, -10, 0), V(0, 0, 1), 4.5),
], False)
sketch9.addConstraint([
    Sketcher.Constraint("Equal", 0, 1),
    Sketcher.Constraint("Equal", 1, 2),
    Sketcher.Constraint("Equal", 2, 3),
    Sketcher.Constraint("Symmetric", 0, 3, 1, 3, -2),
    Sketcher.Constraint("Symmetric", 2, 3, 3, 3, -2),
    Sketcher.Constraint("Vertical", 1, 3, 2, 3),
    Sketcher.Constraint("Diameter", 0, 9.0),
    Sketcher.Constraint("DistanceX", -1, 1, 0, 3, 10.0),
    Sketcher.Constraint("DistanceY", 0, 3, -1, 1, 170.0),
    Sketcher.Constraint("DistanceY", 2, 3, -1, 1, 10.0),
])
doc.recompute()
hole8 = body.newObject("PartDesign::Hole", "Hole007")
hole8.Profile = sketch9
hole8.ThreadType = "None"
hole8.Diameter = 9
hole8.DepthType = "Dimension"
hole8.Depth = 3
hole8.DrillPoint = "Angled"
hole8.DrillPointAngle = 118

doc.recompute()
